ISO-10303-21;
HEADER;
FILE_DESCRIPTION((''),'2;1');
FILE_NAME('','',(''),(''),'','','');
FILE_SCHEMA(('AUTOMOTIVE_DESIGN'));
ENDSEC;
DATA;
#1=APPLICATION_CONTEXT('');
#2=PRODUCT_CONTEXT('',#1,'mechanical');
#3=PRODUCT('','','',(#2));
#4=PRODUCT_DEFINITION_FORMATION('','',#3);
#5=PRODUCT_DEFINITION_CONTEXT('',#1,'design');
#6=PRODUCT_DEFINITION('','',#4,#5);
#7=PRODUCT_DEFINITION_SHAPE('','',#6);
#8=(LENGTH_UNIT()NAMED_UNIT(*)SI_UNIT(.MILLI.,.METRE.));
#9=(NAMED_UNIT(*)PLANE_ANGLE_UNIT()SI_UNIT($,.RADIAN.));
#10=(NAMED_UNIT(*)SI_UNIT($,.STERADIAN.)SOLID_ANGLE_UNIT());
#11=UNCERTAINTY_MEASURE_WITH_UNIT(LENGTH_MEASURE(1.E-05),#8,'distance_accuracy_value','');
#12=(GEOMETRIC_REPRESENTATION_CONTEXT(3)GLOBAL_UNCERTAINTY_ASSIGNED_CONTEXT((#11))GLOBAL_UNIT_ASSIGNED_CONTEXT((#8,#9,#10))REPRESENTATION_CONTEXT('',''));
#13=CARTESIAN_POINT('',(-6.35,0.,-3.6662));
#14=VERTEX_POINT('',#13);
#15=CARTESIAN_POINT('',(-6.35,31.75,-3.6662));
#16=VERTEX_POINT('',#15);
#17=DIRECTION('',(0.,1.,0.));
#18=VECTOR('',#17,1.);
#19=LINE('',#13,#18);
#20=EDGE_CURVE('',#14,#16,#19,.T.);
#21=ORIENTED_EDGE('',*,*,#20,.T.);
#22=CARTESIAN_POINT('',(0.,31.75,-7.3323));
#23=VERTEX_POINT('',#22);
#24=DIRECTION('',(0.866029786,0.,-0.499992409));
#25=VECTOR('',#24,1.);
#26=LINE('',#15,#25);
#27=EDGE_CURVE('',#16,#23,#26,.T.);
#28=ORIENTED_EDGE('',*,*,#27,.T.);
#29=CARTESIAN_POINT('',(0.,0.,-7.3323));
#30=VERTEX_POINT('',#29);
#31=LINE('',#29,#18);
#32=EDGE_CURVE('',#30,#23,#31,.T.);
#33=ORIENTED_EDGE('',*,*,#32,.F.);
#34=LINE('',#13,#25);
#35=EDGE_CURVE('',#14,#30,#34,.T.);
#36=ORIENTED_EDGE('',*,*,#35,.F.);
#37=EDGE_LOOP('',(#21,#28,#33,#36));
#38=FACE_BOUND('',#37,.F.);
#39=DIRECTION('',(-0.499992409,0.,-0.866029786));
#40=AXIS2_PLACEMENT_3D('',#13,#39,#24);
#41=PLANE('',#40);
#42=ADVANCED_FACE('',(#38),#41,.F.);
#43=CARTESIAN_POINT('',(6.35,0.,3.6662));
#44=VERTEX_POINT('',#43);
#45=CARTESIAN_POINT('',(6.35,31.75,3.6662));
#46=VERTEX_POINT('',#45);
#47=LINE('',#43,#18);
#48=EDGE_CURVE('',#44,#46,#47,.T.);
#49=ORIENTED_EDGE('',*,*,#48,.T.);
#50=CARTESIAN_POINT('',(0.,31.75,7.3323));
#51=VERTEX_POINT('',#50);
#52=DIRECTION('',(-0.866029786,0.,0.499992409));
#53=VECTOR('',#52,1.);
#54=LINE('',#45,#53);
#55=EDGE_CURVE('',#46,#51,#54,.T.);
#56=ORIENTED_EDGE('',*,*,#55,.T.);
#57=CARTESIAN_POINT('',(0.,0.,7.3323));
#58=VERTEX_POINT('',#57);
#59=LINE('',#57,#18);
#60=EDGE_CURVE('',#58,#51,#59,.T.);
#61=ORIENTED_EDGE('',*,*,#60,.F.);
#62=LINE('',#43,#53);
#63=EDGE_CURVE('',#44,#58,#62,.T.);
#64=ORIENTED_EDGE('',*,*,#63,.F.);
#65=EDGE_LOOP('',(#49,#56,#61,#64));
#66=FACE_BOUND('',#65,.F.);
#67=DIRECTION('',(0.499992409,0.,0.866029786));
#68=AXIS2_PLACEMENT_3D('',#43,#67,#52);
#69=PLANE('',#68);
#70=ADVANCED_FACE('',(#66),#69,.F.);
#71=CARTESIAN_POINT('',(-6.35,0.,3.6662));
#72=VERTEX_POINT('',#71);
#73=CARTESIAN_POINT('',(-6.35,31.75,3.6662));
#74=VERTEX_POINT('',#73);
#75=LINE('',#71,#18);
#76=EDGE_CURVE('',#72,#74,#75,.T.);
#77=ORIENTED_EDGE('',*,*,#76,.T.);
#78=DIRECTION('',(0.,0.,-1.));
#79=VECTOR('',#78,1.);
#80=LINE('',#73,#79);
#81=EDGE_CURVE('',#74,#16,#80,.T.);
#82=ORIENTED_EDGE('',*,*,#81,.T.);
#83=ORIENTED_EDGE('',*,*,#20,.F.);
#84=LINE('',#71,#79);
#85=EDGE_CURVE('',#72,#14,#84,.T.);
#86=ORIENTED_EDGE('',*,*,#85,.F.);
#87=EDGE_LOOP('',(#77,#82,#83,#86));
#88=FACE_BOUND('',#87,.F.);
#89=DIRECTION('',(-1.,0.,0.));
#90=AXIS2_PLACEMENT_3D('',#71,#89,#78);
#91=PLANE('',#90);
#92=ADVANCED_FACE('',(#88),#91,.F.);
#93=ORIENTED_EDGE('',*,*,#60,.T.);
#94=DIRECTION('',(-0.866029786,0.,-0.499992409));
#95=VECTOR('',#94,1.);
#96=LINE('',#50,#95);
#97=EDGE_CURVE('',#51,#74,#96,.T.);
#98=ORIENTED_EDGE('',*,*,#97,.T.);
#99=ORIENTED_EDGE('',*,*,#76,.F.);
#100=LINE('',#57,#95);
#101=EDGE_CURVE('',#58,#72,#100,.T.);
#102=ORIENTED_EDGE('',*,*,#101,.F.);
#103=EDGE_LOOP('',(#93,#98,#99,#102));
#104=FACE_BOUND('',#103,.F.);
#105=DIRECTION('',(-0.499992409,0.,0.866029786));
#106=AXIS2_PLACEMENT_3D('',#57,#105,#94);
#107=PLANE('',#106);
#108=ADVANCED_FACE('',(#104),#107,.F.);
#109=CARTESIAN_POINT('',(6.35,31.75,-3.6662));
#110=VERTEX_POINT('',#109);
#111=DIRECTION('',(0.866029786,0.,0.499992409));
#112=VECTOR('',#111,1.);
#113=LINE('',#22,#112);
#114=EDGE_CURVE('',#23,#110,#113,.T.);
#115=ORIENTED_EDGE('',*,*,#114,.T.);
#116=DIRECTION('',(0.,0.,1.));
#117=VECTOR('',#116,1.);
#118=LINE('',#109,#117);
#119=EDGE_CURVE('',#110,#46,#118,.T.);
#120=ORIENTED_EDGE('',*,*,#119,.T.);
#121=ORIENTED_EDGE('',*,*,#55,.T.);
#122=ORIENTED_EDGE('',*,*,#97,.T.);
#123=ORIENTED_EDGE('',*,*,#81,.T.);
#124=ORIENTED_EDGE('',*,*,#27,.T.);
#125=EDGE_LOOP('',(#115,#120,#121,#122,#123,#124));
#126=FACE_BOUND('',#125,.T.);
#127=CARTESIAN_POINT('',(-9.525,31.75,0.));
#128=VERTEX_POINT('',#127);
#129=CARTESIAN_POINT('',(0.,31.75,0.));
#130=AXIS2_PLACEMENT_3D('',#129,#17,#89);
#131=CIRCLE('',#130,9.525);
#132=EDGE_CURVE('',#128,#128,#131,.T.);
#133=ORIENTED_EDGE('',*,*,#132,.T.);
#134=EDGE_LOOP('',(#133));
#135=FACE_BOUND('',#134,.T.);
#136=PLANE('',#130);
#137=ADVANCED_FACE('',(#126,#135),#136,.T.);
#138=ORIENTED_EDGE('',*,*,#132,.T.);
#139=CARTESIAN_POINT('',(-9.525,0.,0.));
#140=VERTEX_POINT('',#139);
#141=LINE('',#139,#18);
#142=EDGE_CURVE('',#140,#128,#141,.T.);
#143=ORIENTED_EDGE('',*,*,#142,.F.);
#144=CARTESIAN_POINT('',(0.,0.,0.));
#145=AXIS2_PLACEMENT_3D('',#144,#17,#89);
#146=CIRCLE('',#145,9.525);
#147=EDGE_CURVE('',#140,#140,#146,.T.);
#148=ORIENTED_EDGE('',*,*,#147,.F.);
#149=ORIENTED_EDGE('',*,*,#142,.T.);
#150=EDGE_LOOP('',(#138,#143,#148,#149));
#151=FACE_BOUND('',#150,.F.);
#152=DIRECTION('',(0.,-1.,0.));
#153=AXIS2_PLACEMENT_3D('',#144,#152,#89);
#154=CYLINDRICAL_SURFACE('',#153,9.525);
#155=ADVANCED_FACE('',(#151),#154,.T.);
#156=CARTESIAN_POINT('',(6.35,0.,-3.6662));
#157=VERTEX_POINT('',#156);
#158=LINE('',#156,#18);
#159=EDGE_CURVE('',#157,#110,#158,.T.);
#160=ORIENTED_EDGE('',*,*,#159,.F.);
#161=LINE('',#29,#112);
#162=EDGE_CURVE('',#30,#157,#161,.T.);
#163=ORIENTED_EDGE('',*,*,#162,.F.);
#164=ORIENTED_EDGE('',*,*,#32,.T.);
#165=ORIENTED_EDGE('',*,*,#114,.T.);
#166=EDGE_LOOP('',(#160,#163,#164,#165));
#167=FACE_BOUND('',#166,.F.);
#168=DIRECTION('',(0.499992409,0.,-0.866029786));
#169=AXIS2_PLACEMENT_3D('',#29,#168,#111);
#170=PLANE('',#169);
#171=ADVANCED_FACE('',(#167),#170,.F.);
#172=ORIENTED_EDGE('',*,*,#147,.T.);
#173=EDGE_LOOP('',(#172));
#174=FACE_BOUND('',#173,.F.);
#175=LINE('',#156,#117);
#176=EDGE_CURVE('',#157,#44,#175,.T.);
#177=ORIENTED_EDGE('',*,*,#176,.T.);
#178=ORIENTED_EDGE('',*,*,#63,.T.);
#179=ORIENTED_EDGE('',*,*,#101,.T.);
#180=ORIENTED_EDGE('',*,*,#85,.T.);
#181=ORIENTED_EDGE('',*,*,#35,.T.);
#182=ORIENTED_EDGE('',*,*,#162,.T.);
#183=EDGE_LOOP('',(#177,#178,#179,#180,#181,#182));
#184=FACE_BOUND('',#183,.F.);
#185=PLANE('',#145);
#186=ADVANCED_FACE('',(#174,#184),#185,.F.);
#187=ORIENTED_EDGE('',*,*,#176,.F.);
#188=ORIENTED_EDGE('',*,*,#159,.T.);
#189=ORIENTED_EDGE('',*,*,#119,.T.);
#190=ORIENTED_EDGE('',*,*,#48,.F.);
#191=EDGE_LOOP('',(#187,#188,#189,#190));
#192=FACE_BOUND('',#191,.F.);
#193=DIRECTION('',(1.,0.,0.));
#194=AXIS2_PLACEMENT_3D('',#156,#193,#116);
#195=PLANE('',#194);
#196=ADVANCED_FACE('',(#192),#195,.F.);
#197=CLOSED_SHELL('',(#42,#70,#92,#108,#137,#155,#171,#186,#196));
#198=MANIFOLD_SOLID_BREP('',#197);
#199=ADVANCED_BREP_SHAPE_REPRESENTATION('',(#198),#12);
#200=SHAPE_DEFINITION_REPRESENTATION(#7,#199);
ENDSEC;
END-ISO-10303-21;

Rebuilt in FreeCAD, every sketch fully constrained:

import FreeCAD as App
import Part
import Sketcher

V = App.Vector
Q = App.Units.Quantity

doc = App.newDocument("Part")
params = doc.addObject("Spreadsheet::Sheet", "Params")
for row, (alias, value) in enumerate([
    ("sketch1_diameter", "0.75 in"),
    ("pad1_length", "1.25 in"),
], start=1):
    params.set(f"A{row}", alias)
    params.set(f"B{row}", "=" + value)
    params.setAlias(f"B{row}", alias)

body = doc.addObject("PartDesign::Body", "Body")

# Sketch on XZ plane
sketch1 = body.newObject("Sketcher::SketchObject", "Sketch")
sketch1.AttachmentSupport = (doc.getObject("XZ_Plane"), [""])
sketch1.MapMode = "FlatFace"
sketch1.addGeometry([
    Part.Circle(V(0, 0, 0), V(0, 0, 1), 10),  # 0
    Part.LineSegment(V(-6, 4, 0), V(-6, -4, 0)),  # 1
    Part.LineSegment(V(-6, -4, 0), V(0, -7, 0)),  # 2
    Part.LineSegment(V(0, -7, 0), V(6, -4, 0)),  # 3
    Part.LineSegment(V(6, -4, 0), V(6, 4, 0)),  # 4
    Part.LineSegment(V(6, 4, 0), V(0, 7, 0)),  # 5
    Part.LineSegment(V(0, 7, 0), V(-6, 4, 0)),  # 6
], False)
sketch1.addConstraint([
    Sketcher.Constraint("Coincident", 1, 2, 2, 1),
    Sketcher.Constraint("Coincident", 2, 2, 3, 1),
    Sketcher.Constraint("Coincident", 3, 2, 4, 1),
    Sketcher.Constraint("Coincident", 4, 2, 5, 1),
    Sketcher.Constraint("Coincident", 5, 2, 6, 1),
    Sketcher.Constraint("Coincident", 6, 2, 1, 1),
    Sketcher.Constraint("Vertical", 1),
    Sketcher.Constraint("Vertical", 4),
    Sketcher.Constraint("Coincident", 0, 3, -1, 1),
    Sketcher.Constraint("Symmetric", 1, 2, 4, 2, -1, 1),
    Sketcher.Constraint("Symmetric", 2, 2, 5, 2, -1, 1),
    Sketcher.Constraint("PointOnObject", 2, 2, -2),
    Sketcher.Constraint("Parallel", 3, 6),
    Sketcher.Constraint("Horizontal", 1, 2, 3, 2),
    Sketcher.Constraint("Diameter", 0, Q("0.75 in")),
    Sketcher.Constraint("DistanceX", 1, 2, 3, 2, Q("0.5 in")),
    Sketcher.Constraint("Angle", 2, Q("-29.9995 deg")),
    Sketcher.Constraint("DistanceY", 2, 2, 4, 2, Q("0.433 in")),
])
sketch1.setExpression("Constraints[14]", "Params.sketch1_diameter")
pad1 = body.newObject("PartDesign::Pad", "Pad")
pad1.Profile = sketch1
pad1.setExpression("Length", "Params.pad1_length")
pad1.Reversed = True

doc.recompute()
